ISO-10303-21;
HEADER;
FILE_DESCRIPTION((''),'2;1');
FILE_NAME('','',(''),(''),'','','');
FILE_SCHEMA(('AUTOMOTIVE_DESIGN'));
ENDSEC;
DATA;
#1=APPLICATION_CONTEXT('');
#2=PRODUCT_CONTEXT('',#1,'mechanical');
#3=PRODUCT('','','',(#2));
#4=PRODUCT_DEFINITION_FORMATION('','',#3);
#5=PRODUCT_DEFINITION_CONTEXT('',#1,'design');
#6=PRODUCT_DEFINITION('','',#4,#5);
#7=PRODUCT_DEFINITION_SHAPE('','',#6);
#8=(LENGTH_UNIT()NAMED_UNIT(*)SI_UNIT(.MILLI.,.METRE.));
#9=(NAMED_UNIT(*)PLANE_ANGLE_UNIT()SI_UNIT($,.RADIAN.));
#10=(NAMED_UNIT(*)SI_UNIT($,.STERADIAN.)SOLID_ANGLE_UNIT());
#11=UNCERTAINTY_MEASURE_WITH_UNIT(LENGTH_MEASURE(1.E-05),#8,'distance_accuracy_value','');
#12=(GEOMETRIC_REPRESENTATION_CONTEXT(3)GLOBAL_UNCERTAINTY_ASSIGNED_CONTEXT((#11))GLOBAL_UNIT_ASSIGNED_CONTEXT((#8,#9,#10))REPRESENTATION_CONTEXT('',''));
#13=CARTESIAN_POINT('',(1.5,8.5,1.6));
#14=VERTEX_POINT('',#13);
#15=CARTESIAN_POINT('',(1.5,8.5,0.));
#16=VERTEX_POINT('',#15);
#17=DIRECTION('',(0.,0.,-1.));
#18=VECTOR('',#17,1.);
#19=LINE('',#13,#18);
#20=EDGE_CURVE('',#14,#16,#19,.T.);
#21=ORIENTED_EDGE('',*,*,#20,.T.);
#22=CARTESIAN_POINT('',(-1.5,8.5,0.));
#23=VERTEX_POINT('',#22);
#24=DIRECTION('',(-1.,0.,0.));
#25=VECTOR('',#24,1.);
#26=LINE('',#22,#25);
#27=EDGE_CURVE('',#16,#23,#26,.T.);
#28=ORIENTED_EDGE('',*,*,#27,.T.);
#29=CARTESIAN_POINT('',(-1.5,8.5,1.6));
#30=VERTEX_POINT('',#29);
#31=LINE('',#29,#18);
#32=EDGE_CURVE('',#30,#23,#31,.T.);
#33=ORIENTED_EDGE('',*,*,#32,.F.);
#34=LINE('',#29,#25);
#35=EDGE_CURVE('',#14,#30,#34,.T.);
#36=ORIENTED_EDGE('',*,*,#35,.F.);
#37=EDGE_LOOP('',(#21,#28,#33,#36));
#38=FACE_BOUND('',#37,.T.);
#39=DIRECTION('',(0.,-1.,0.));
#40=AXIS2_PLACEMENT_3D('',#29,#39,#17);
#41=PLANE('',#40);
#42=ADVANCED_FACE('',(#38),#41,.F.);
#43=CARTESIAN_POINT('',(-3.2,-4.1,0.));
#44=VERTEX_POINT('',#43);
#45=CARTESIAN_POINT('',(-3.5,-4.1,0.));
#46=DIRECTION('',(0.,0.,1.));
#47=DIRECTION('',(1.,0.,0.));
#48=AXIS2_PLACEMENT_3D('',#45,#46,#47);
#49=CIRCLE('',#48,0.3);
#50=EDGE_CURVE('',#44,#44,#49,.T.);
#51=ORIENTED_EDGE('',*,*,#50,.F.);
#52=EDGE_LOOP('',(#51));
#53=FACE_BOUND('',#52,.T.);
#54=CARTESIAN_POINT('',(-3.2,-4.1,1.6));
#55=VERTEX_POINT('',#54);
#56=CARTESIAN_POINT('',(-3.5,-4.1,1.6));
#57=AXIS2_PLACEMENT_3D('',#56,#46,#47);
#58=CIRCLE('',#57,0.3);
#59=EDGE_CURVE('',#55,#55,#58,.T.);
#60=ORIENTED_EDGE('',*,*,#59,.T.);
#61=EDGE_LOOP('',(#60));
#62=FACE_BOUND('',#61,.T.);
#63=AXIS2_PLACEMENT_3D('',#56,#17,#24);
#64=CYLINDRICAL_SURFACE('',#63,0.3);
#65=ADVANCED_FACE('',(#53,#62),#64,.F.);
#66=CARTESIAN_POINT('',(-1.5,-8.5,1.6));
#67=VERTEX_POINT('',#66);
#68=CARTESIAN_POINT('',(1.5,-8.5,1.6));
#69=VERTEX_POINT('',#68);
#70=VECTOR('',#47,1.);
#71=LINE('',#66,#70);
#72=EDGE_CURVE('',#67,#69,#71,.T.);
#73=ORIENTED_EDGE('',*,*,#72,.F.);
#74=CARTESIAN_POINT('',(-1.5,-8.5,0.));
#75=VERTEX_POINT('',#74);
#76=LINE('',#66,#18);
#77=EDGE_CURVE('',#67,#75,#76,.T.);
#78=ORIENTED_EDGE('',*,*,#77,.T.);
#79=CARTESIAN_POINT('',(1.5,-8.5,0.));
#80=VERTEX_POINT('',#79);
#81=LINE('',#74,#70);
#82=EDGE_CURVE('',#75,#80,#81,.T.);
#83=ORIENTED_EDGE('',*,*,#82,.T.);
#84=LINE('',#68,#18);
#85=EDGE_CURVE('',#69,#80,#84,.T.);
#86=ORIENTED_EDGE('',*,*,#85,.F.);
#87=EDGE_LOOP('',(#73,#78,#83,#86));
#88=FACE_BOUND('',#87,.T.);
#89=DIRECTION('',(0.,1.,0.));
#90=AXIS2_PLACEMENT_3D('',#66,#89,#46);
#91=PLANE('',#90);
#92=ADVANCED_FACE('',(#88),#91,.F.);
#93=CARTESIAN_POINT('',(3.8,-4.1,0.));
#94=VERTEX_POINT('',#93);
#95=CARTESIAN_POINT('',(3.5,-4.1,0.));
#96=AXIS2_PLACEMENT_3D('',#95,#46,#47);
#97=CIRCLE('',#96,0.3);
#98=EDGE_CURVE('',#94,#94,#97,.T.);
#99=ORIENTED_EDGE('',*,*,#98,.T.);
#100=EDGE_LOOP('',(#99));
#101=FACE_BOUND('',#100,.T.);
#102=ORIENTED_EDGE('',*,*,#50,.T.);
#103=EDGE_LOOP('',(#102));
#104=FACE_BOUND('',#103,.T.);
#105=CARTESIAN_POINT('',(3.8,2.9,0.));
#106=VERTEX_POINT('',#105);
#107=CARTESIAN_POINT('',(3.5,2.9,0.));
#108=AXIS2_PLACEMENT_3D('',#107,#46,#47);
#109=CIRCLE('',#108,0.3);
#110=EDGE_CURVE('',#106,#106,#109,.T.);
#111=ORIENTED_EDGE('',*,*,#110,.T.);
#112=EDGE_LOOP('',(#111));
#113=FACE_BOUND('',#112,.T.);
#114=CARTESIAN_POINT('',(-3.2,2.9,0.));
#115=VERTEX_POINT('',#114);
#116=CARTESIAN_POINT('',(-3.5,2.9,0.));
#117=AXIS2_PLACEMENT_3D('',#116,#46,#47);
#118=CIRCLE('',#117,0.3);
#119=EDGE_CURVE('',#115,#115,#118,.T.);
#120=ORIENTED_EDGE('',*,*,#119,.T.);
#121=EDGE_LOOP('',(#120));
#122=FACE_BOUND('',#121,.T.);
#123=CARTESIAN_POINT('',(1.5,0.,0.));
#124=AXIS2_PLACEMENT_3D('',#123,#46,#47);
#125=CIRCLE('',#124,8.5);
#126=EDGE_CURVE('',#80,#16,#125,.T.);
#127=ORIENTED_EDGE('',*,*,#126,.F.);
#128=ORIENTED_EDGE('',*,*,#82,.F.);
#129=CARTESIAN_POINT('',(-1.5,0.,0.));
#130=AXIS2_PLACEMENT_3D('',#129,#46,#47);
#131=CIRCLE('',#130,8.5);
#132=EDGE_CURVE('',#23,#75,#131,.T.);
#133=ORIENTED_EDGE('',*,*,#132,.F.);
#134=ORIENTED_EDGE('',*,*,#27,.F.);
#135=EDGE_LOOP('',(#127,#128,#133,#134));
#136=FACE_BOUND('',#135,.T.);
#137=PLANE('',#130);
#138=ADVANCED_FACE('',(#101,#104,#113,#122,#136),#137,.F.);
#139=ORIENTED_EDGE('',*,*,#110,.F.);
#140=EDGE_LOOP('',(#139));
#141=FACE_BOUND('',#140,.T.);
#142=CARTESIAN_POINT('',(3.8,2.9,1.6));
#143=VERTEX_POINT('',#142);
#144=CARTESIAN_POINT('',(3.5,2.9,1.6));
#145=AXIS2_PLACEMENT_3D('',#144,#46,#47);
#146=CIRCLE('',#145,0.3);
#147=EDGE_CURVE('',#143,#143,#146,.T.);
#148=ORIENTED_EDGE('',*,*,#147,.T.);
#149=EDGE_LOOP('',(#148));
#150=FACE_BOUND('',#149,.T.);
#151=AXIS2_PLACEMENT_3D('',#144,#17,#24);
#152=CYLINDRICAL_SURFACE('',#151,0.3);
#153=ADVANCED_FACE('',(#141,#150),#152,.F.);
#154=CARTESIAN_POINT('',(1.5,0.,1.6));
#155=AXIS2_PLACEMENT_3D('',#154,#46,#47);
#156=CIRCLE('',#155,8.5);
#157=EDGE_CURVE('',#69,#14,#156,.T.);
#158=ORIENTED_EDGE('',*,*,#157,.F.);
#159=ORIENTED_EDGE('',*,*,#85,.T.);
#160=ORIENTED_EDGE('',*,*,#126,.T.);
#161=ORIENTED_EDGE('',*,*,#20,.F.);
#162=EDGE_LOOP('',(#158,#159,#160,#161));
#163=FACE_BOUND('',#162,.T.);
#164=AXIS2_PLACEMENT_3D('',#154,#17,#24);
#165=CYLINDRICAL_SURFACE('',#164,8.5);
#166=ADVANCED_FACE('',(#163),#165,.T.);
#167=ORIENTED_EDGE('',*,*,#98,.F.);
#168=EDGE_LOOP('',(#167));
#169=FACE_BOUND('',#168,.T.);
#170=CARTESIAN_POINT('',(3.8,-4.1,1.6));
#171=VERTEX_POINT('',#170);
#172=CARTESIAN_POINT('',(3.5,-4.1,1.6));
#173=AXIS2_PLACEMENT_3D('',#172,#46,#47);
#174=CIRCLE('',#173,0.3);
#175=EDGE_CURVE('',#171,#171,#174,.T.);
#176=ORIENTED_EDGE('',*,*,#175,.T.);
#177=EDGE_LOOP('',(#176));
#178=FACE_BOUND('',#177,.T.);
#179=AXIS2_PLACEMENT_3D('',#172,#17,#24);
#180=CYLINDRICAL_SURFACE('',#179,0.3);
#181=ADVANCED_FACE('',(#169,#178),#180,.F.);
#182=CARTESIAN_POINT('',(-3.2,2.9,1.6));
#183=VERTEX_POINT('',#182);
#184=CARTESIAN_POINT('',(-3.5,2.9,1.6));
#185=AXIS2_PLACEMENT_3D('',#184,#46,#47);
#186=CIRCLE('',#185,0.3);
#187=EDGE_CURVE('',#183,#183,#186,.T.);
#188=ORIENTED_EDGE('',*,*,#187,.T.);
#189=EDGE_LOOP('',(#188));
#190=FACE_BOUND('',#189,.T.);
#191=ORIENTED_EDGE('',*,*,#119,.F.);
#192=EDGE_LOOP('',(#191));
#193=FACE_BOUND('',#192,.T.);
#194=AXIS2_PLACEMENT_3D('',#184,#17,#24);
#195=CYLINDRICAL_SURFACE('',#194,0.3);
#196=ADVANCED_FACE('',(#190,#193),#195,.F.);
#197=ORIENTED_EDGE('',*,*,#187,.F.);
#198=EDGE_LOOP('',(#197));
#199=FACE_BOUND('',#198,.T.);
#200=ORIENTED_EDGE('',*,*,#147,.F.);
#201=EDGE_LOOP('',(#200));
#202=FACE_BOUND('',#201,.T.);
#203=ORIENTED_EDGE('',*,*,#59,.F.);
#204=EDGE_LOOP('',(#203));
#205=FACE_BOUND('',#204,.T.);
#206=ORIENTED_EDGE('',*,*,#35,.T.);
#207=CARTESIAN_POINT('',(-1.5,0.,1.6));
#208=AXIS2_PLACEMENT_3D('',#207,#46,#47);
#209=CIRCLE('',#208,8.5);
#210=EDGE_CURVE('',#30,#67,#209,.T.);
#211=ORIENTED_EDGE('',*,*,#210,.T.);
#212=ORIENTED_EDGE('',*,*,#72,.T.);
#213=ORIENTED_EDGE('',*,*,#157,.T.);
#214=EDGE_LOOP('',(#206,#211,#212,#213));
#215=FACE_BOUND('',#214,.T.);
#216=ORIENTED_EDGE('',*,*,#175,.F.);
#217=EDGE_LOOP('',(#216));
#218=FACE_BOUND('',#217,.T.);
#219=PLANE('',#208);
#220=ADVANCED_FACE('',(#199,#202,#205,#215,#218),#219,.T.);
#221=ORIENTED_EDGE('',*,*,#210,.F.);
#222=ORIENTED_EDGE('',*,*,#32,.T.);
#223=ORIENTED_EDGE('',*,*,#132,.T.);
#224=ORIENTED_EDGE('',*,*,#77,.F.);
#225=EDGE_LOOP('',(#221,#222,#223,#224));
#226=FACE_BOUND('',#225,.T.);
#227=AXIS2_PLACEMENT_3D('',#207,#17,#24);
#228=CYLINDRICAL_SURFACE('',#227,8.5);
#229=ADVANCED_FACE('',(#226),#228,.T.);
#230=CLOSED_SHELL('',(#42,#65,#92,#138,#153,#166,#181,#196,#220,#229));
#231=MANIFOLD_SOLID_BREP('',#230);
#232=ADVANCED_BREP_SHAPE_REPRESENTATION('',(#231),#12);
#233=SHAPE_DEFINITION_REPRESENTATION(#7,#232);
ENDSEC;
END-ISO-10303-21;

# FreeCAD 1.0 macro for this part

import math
import FreeCAD as App
import Part
import Sketcher
Q = App.Units.Quantity

doc = App.newDocument("Part")
body = doc.addObject("PartDesign::Body", "Body")

# Sketch on XY plane
sketch1 = doc.addObject("Sketcher::SketchObject", "Sketch")
body.addObject(sketch1)
sketch1.AttachmentSupport = (doc.XY_Plane, [""])
sketch1.MapMode = "FlatFace"
sketch1.addGeometry([
    Part.LineSegment(App.Vector(1.5, 8.5, 0), App.Vector(-1.5, 8.5, 0)),  # 0
    Part.ArcOfCircle(Part.Circle(App.Vector(-1.5, 0, 0), App.Vector(0, 0, 1), 8.5), math.radians(90), math.radians(270)),  # 1
    Part.LineSegment(App.Vector(-1.5, -8.5, 0), App.Vector(1.5, -8.5, 0)),  # 2
    Part.ArcOfCircle(Part.Circle(App.Vector(1.5, 0, 0), App.Vector(0, 0, 1), 8.5), math.radians(-90), math.radians(90)),  # 3
    Part.Circle(App.Vector(3.5, -4.1, 0), App.Vector(0, 0, 1), 0.3),  # 4
    Part.Circle(App.Vector(-3.5, -4.1, 0), App.Vector(0, 0, 1), 0.3),  # 5
    Part.Circle(App.Vector(3.5, 2.9, 0), App.Vector(0, 0, 1), 0.3),  # 6
    Part.Circle(App.Vector(-3.5, 2.9, 0), App.Vector(0, 0, 1), 0.3),  # 7
], False)
sketch1.addConstraint([
    Sketcher.Constraint("Tangent", 0, 2, 1, 1),
    Sketcher.Constraint("Tangent", 1, 2, 2, 1),
    Sketcher.Constraint("Tangent", 2, 2, 3, 1),
    Sketcher.Constraint("Tangent", 3, 2, 0, 1),
    Sketcher.Constraint("Horizontal", 0),
    Sketcher.Constraint("Horizontal", 2),
    Sketcher.Constraint("Equal", 4, 5),
    Sketcher.Constraint("Equal", 5, 6),
    Sketcher.Constraint("Equal", 6, 7),
    Sketcher.Constraint("Symmetric", 1, 3, 3, 3, -1, 1),
    Sketcher.Constraint("Symmetric", 4, 3, 5, 3, -2),
    Sketcher.Constraint("Symmetric", 6, 3, 7, 3, -2),
    Sketcher.Constraint("Vertical", 4, 3, 6, 3),
    Sketcher.Constraint("Diameter", 4, Q("0.6 mm")),
    Sketcher.Constraint("Radius", 1, Q("8.5 mm")),
    Sketcher.Constraint("DistanceX", 0, 2, 0, 1, Q("3 mm")),
    Sketcher.Constraint("DistanceX", 3, 3, 4, 3, Q("2 mm")),
    Sketcher.Constraint("DistanceY", 4, 3, 6, 3, Q("7 mm")),
    Sketcher.Constraint("DistanceY", 4, 3, -1, 1, Q("4.1 mm")),
])
pad1 = doc.addObject("PartDesign::Pad", "Pad")
body.addObject(pad1)
pad1.Profile = sketch1
pad1.Length = 1.6

doc.recompute()
